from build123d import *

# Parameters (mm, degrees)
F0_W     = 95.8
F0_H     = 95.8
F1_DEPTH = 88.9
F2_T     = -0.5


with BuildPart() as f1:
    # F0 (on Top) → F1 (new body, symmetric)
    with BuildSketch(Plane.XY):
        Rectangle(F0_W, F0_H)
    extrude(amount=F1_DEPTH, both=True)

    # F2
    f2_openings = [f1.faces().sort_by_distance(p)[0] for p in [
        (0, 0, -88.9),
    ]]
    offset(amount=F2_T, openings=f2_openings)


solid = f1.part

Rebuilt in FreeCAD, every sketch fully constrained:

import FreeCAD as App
import Part
import Sketcher


def faces_at(feature, points):
    """Names of the faces that lie closest to the given points."""
    faces = feature.Shape.Faces
    near = lambda p: min(range(len(faces)), key=lambda i: faces[i].distToShape(Part.Vertex(*p))[0])
    return sorted({f"Face{near(p) + 1}" for p in points})

doc = App.newDocument("Part")
body = doc.addObject("PartDesign::Body", "Body")

# Sketch on XY plane
sketch1 = body.newObject("Sketcher::SketchObject", "Sketch")
sketch1.AttachmentSupport = (doc.getObject("XY_Plane"), [""])
sketch1.MapMode = "FlatFace"
sketch1.addGeometry([
    Part.LineSegment(App.Vector(-47.9, 47.9, 0), App.Vector(-47.9, -47.9, 0)),
    Part.LineSegment(App.Vector(-47.9, -47.9, 0), App.Vector(47.9, -47.9, 0)),
    Part.LineSegment(App.Vector(47.9, -47.9, 0), App.Vector(47.9, 47.9, 0)),
    Part.LineSegment(App.Vector(47.9, 47.9, 0), App.Vector(-47.9, 47.9, 0)),
], False)
sketch1.addConstraint([
    Sketcher.Constraint("Coincident", 0, 2, 1, 1),
    Sketcher.Constraint("Coincident", 1, 2, 2, 1),
    Sketcher.Constraint("Coincident", 2, 2, 3, 1),
    Sketcher.Constraint("Coincident", 3, 2, 0, 1),
    Sketcher.Constraint("Vertical", 0),
    Sketcher.Constraint("Horizontal", 1),
    Sketcher.Constraint("Vertical", 2),
    Sketcher.Constraint("Horizontal", 3),
    Sketcher.Constraint("Symmetric", 0, 2, 2, 2, -1, 1),
    Sketcher.Constraint("Equal", 3, 0),
    Sketcher.Constraint("DistanceX", 1, 1, 1, 2, 95.8),
])
pad1 = body.newObject("PartDesign::Pad", "Pad")
pad1.Profile = sketch1
pad1.Length = 177.8
pad1.Midplane = True
doc.recompute()

thickness = body.newObject("PartDesign::Thickness", "Thickness")
thickness.Base = (pad1, faces_at(pad1, [(0, 0, -88.9)]))
thickness.Value = 0.5
thickness.Reversed = True
thickness.Join = "Arc"

doc.recompute()
